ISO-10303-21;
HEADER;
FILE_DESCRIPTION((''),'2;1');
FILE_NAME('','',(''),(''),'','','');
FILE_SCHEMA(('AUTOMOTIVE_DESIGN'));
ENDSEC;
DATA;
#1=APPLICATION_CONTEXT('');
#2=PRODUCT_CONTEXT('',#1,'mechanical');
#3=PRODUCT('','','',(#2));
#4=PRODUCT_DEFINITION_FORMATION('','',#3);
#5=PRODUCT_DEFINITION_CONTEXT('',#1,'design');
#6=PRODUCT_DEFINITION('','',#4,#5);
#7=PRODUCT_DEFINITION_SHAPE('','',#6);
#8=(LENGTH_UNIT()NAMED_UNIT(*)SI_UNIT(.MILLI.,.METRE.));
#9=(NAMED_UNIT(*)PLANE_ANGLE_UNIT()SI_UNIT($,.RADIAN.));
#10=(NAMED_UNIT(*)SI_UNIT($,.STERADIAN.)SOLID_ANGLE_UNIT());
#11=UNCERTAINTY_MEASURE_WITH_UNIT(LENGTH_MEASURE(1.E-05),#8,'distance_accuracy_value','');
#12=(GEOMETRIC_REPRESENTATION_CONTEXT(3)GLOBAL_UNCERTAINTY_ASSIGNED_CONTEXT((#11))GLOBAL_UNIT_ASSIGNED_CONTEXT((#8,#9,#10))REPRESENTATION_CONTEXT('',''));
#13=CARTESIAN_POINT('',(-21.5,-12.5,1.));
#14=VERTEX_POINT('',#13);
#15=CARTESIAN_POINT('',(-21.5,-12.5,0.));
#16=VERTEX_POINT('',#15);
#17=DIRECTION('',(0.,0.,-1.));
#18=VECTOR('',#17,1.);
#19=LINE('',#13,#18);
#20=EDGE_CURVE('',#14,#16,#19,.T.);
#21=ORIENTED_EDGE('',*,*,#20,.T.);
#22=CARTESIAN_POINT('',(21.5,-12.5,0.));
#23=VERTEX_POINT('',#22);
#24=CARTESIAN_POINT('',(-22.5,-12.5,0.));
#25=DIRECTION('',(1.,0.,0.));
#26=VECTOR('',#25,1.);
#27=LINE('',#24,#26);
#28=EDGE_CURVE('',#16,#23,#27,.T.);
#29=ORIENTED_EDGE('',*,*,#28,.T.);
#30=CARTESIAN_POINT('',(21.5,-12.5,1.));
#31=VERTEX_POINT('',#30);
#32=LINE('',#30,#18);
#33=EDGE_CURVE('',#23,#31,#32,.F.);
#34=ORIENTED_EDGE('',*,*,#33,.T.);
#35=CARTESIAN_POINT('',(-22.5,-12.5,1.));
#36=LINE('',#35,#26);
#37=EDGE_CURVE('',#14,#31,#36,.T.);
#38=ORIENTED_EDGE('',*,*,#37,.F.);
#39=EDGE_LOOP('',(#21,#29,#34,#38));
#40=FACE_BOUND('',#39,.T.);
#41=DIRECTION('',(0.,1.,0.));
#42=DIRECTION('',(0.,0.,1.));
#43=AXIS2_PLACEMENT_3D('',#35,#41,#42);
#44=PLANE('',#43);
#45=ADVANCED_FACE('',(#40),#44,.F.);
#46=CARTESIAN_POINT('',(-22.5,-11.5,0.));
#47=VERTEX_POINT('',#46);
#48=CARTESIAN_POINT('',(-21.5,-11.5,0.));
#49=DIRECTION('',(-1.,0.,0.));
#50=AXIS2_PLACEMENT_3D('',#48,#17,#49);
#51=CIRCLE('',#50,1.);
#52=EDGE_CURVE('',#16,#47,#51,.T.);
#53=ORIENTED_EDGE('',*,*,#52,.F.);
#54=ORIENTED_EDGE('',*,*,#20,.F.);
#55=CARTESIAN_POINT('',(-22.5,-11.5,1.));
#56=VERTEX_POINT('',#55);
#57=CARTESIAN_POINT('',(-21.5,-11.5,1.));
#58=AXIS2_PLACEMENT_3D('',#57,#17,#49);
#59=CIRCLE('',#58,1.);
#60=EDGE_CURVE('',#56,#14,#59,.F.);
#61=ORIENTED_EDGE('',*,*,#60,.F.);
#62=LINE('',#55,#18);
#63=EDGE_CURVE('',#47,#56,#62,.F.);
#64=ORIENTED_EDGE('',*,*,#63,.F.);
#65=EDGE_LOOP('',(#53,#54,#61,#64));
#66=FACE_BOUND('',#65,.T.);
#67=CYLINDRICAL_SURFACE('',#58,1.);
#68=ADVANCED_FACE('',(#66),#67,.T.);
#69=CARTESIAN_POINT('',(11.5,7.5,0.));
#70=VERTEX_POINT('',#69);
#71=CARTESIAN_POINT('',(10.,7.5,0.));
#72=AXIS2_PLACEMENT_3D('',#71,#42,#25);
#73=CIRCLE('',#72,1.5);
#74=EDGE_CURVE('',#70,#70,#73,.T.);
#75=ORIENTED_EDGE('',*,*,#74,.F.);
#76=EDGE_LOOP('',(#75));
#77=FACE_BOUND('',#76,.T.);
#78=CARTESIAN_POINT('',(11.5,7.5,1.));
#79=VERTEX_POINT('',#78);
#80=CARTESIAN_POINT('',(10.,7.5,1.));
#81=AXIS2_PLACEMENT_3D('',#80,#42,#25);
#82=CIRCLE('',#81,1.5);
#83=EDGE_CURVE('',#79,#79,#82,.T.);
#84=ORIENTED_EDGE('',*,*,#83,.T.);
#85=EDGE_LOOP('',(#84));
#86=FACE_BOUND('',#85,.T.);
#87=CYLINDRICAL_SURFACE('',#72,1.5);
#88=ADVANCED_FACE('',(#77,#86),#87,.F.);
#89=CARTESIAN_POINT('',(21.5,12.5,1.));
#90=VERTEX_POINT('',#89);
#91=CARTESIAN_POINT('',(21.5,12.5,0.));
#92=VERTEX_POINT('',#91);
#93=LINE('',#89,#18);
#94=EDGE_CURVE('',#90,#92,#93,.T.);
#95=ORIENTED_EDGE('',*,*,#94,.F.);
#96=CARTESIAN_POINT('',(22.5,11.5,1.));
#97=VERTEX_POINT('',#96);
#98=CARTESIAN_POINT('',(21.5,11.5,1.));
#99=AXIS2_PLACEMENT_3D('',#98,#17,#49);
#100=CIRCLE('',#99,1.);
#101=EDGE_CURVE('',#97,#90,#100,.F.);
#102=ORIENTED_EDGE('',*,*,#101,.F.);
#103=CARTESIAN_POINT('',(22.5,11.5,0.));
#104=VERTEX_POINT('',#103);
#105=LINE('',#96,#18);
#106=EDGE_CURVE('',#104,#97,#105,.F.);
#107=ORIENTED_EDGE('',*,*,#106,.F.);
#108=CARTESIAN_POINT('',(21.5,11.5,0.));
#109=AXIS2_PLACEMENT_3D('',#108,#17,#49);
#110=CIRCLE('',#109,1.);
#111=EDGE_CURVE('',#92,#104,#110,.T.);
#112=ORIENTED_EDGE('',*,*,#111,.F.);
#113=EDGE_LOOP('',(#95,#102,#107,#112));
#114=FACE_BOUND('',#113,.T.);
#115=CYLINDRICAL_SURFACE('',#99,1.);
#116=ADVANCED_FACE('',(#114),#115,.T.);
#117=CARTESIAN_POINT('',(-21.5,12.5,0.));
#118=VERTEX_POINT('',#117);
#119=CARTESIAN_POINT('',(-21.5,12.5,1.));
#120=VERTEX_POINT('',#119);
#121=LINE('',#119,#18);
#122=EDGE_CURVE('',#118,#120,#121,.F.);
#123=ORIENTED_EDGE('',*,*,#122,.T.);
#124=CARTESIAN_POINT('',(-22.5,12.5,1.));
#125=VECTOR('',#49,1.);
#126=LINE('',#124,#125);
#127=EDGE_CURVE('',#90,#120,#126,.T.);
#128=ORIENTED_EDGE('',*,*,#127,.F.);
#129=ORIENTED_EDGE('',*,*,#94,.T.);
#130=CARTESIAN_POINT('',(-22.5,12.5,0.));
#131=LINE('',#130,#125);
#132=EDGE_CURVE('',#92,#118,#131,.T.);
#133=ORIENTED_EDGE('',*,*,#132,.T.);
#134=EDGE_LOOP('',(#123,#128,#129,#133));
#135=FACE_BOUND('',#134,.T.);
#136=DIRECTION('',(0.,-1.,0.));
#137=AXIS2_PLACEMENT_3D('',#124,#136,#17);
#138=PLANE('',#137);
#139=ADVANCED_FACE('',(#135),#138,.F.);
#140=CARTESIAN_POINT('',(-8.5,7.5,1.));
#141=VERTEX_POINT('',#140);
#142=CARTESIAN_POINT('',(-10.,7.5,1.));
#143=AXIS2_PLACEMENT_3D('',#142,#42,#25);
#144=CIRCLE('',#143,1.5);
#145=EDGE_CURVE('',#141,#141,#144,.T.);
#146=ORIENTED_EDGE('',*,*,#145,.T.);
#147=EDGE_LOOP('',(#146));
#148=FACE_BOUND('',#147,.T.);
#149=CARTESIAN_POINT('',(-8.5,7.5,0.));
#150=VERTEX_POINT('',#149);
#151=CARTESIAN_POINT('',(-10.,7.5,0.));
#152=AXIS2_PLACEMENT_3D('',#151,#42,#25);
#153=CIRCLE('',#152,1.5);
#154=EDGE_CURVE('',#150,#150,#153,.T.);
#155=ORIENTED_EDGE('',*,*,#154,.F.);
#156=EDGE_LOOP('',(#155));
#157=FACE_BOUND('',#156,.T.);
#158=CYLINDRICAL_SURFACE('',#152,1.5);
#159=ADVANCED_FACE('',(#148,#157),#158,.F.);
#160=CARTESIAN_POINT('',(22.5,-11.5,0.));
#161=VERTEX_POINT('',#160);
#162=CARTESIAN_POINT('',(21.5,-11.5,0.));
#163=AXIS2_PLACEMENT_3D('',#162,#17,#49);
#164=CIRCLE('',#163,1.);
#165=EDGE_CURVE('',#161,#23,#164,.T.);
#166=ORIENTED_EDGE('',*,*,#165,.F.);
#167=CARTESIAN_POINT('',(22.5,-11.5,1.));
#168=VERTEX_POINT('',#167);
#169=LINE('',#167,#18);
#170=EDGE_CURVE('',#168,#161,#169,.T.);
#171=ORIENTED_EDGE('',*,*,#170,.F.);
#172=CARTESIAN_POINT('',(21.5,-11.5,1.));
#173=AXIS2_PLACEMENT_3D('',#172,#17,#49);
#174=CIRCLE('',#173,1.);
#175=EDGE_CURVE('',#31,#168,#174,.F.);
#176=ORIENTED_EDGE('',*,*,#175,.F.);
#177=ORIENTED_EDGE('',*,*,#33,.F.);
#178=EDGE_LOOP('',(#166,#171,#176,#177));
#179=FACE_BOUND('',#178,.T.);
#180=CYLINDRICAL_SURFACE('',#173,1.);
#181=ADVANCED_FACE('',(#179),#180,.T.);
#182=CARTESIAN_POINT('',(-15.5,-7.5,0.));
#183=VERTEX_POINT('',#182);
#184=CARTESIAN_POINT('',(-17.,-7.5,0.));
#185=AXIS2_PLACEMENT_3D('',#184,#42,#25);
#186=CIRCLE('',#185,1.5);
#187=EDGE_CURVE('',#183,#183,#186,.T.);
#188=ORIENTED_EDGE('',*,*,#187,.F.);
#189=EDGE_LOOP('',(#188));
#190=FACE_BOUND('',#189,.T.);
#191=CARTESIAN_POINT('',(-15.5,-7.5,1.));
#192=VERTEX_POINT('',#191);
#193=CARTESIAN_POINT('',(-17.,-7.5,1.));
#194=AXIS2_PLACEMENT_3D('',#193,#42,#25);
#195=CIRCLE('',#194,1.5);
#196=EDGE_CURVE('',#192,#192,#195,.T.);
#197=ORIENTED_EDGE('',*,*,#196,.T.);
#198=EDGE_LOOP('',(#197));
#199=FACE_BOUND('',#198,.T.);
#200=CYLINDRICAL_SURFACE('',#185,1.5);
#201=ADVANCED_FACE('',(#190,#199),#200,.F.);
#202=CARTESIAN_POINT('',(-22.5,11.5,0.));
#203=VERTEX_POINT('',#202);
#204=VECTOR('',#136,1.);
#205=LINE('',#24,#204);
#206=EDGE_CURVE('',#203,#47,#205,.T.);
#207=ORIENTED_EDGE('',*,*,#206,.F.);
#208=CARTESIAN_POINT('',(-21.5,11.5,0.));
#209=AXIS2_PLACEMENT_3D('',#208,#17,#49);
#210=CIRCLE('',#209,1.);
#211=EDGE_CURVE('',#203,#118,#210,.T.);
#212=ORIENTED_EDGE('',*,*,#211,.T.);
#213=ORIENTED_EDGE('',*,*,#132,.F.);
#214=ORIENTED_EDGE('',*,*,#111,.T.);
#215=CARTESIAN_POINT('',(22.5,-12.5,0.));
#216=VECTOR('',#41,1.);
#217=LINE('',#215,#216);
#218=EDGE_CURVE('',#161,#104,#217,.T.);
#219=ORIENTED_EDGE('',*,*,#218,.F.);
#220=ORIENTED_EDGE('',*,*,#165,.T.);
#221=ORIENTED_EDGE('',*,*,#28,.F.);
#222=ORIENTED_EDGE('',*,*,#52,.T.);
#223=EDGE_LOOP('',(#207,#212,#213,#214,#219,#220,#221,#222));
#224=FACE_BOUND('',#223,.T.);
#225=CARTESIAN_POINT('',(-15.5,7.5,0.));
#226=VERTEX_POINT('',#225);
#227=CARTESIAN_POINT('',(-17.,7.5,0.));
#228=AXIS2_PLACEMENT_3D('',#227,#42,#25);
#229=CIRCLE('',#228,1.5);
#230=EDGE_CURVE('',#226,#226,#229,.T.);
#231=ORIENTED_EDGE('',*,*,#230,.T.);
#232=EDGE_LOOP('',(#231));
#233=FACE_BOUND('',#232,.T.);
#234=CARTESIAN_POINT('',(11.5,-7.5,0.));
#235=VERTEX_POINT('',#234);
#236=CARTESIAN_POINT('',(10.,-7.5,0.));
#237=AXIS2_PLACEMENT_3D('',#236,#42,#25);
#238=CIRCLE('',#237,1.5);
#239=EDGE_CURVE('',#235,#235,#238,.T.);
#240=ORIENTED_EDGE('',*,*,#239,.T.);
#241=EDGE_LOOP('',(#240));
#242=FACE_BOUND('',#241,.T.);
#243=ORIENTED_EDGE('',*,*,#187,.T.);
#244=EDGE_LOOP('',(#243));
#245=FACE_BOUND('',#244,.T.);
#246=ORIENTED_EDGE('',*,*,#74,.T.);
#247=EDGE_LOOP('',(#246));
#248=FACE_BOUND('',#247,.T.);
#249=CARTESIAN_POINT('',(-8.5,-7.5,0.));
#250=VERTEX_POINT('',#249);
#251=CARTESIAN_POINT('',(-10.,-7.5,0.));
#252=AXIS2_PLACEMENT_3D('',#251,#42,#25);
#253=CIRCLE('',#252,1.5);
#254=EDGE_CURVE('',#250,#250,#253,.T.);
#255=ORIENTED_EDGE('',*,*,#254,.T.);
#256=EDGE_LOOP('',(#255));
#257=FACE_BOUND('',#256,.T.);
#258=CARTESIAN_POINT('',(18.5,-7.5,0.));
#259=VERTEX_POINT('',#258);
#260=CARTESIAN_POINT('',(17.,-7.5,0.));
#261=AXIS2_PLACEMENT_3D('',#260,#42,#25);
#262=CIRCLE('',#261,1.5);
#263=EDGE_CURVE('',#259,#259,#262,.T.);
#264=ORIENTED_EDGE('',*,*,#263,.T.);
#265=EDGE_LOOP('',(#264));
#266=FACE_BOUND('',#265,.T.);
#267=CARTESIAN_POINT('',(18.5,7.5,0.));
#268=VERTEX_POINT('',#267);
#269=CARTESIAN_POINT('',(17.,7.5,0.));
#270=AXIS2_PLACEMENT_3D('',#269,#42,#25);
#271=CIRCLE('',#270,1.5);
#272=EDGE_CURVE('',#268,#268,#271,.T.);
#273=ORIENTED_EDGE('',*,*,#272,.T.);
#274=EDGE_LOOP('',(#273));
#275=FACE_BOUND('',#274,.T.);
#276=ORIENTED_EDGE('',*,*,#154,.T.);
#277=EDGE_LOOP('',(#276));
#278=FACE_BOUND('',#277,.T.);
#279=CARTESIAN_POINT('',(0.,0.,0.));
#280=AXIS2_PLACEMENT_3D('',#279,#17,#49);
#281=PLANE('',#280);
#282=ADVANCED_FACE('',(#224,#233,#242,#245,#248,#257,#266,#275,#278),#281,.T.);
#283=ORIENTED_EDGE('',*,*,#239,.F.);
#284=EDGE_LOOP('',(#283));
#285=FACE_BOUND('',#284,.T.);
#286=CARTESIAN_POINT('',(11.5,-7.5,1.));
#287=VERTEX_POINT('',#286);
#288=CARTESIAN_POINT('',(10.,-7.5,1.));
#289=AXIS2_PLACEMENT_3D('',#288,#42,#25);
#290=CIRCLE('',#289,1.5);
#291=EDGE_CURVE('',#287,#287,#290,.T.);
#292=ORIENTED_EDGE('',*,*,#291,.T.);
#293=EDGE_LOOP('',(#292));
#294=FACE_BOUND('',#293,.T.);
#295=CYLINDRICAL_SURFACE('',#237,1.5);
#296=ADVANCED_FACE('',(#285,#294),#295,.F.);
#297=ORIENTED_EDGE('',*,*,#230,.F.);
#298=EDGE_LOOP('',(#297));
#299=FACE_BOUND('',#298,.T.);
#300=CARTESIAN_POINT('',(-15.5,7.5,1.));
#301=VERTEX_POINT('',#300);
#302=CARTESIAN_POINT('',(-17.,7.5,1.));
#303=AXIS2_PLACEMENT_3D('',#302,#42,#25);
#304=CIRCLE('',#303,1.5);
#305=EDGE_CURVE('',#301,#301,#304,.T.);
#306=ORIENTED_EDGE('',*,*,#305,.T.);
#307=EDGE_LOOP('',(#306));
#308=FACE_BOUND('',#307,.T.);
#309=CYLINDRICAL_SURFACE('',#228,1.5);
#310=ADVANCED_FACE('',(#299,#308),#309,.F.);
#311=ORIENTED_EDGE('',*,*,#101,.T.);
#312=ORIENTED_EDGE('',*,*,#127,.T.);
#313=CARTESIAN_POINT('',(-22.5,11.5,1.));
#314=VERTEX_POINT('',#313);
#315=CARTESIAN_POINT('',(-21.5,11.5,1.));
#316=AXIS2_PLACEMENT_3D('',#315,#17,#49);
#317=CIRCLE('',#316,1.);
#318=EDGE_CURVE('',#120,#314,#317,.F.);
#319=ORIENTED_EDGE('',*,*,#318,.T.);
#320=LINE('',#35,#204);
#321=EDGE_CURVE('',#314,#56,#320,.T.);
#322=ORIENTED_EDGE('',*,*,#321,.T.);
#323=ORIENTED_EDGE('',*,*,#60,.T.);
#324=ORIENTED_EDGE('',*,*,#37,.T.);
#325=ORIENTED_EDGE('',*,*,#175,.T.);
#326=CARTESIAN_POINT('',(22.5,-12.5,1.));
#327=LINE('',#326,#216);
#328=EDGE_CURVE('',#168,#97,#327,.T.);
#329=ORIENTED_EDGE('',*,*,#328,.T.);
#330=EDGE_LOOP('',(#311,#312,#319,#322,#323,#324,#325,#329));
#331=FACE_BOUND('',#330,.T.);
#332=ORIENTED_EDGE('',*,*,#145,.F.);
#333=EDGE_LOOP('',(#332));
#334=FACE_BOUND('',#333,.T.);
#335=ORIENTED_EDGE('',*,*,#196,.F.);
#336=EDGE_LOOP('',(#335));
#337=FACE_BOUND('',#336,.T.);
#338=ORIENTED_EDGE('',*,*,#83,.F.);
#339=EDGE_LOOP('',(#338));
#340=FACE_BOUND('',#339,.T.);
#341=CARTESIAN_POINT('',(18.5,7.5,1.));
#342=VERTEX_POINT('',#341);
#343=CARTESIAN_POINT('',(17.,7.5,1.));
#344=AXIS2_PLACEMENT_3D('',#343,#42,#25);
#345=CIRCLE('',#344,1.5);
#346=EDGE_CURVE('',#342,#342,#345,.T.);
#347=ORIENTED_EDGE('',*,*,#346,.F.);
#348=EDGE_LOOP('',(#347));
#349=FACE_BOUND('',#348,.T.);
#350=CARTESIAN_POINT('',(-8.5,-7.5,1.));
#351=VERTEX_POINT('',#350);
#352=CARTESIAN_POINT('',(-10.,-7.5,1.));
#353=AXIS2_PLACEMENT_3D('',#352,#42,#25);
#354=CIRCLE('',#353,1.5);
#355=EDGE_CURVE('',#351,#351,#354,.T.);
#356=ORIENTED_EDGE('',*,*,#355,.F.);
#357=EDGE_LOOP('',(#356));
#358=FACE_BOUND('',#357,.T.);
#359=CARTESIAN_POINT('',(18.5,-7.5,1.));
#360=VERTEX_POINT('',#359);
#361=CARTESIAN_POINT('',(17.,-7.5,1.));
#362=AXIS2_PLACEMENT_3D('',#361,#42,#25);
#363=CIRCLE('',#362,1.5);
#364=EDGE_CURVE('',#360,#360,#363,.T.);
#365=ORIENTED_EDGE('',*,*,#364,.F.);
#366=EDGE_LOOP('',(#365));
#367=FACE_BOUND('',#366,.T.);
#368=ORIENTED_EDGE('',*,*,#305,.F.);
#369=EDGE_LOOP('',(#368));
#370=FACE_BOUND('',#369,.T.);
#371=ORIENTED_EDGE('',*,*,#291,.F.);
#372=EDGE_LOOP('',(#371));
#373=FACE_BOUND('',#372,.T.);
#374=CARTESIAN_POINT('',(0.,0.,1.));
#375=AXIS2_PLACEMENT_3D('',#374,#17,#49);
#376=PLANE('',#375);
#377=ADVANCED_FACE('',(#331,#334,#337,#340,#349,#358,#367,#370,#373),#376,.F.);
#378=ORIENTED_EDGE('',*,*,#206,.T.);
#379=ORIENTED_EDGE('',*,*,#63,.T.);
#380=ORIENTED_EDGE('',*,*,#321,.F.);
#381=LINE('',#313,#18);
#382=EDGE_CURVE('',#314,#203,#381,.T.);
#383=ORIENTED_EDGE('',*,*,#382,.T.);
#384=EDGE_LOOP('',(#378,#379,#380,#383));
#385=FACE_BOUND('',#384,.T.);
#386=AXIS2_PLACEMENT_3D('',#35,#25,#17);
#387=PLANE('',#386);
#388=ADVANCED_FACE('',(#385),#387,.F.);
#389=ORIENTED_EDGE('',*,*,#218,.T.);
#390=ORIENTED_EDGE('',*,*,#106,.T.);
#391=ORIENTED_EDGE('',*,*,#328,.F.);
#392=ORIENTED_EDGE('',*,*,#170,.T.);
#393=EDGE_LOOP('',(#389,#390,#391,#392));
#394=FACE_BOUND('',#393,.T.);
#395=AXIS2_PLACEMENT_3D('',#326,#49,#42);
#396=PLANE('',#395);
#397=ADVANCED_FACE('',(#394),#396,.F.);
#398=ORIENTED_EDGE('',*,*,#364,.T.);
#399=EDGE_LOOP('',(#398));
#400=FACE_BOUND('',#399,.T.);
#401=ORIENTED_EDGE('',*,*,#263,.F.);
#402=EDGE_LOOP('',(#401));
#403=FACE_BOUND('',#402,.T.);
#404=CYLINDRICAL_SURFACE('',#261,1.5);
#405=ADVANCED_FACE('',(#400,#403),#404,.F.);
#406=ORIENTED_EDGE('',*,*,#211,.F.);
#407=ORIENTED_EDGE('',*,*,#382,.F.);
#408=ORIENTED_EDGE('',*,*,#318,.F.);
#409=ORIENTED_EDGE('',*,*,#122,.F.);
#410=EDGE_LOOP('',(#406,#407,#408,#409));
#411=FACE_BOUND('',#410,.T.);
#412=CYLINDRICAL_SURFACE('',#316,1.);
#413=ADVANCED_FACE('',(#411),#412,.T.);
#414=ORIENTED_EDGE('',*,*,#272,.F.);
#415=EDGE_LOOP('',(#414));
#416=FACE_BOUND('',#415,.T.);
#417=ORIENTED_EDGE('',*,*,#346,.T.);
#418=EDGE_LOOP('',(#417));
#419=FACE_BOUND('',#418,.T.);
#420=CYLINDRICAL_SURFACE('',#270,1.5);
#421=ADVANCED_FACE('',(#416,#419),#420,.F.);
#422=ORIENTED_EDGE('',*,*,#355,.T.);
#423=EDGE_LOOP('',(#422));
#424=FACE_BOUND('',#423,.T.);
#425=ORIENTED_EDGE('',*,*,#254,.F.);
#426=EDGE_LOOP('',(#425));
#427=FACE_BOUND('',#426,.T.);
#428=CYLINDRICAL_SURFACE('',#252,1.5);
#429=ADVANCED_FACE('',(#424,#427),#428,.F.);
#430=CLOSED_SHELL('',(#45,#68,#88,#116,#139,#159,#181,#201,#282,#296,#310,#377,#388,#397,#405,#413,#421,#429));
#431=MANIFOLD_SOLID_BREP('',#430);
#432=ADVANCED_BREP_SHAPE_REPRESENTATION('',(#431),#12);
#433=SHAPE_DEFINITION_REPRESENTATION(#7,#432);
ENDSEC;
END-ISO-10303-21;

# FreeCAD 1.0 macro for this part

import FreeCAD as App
import Part
import Sketcher
from FreeCAD import Vector
Q = App.Units.Quantity


def edges_at(feature, points):
    """Names of the edges that pass closest to the given points."""
    edges = feature.Shape.Edges
    near = lambda p: min(range(len(edges)), key=lambda i: edges[i].distToShape(Part.Vertex(*p))[0])
    return sorted({f"Edge{near(p) + 1}" for p in points})


def add_polygon(sketch, points):
    """Adds a closed chain of lines whose ends are joined by coincident constraints."""
    first, n = sketch.GeometryCount, len(points)
    for a, b in zip(points, points[1:] + points[:1]):
        sketch.addGeometry(Part.LineSegment(App.Vector(*a, 0), App.Vector(*b, 0)), False)
    for i in range(n):
        sketch.addConstraint(Sketcher.Constraint("Coincident", first + i, 2, first + (i + 1) % n, 1))

doc = App.newDocument("Part")
body = doc.addObject("PartDesign::Body", "Body")

# Sketch on XY plane
sketch1 = doc.addObject("Sketcher::SketchObject", "Sketch")
body.addObject(sketch1)
sketch1.AttachmentSupport = (doc.XY_Plane, [""])
sketch1.MapMode = "FlatFace"
add_polygon(sketch1, [(-22, 12), (-22, -12), (22, -12), (22, 12)])  # lines 0-3
sketch1.addConstraint([
    Sketcher.Constraint("Vertical", 0),
    Sketcher.Constraint("Horizontal", 1),
    Sketcher.Constraint("Vertical", 2),
    Sketcher.Constraint("Horizontal", 3),
    Sketcher.Constraint("Symmetric", 0, 2, 2, 2, -1, 1),
    Sketcher.Constraint("DistanceX", 1, 1, 1, 2, Q("45 mm")),
    Sketcher.Constraint("DistanceY", 0, 2, 0, 1, Q("25 mm")),
])
pad1 = doc.addObject("PartDesign::Pad", "Pad")
body.addObject(pad1)
pad1.Profile = sketch1
pad1.Length = 1

# Sketch on XY plane
sketch2 = doc.addObject("Sketcher::SketchObject", "Sketch001")
body.addObject(sketch2)
sketch2.AttachmentSupport = (doc.XY_Plane, [""])
sketch2.MapMode = "FlatFace"
sketch2.AttachmentOffset = App.Placement(Vector(0, 0, 1), App.Rotation())
sketch2.addGeometry([
    Part.Circle(Vector(17, 7.5, 0), Vector(0, 0, 1), 1.5),  # 0
    Part.Circle(Vector(10, 7.5, 0), Vector(0, 0, 1), 1.5),  # 1
    Part.Circle(Vector(-17, 7.5, 0), Vector(0, 0, 1), 1.5),  # 2
    Part.Circle(Vector(-10, 7.5, 0), Vector(0, 0, 1), 1.5),  # 3
    Part.Circle(Vector(17, -7.5, 0), Vector(0, 0, 1), 1.5),  # 4
    Part.Circle(Vector(10, -7.5, 0), Vector(0, 0, 1), 1.5),  # 5
    Part.Circle(Vector(-17, -7.5, 0), Vector(0, 0, 1), 1.5),  # 6
    Part.Circle(Vector(-10, -7.5, 0), Vector(0, 0, 1), 1.5),  # 7
], False)
sketch2.addConstraint([
    Sketcher.Constraint("Equal", 0, 1),
    Sketcher.Constraint("Equal", 1, 2),
    Sketcher.Constraint("Equal", 2, 3),
    Sketcher.Constraint("Equal", 3, 4),
    Sketcher.Constraint("Equal", 4, 5),
    Sketcher.Constraint("Equal", 5, 6),
    Sketcher.Constraint("Equal", 6, 7),
    Sketcher.Constraint("Symmetric", 2, 3, 4, 3, -1, 1),
    Sketcher.Constraint("Symmetric", 3, 3, 5, 3, -1, 1),
    Sketcher.Constraint("Symmetric", 0, 3, 6, 3, -1, 1),
    Sketcher.Constraint("Symmetric", 1, 3, 7, 3, -1, 1),
    Sketcher.Constraint("Symmetric", 0, 3, 2, 3, -2),
    Sketcher.Constraint("Symmetric", 1, 3, 3, 3, -2),
    Sketcher.Constraint("Horizontal", 0, 3, 1, 3),
    Sketcher.Constraint("Diameter", 0, Q("3 mm")),
    Sketcher.Constraint("DistanceX", -1, 1, 0, 3, Q("17 mm")),
    Sketcher.Constraint("DistanceX", -1, 1, 1, 3, Q("10 mm")),
    Sketcher.Constraint("DistanceY", 4, 3, 0, 3, Q("15 mm")),
])
pocket1 = doc.addObject("PartDesign::Pocket", "Pocket")
body.addObject(pocket1)
pocket1.Profile = sketch2
pocket1.Type = "ThroughAll"
doc.recompute()

fillet = doc.addObject("PartDesign::Fillet", "Fillet")
body.addObject(fillet)
fillet.Base = (pocket1, edges_at(pocket1, [
    (22.5, -12.5, 0.5),
    (-22.5, -12.5, 0.5),
    (-22.5, 12.5, 0.5),
    (22.5, 12.5, 0.5),
]))
fillet.Radius = 1

doc.recompute()
